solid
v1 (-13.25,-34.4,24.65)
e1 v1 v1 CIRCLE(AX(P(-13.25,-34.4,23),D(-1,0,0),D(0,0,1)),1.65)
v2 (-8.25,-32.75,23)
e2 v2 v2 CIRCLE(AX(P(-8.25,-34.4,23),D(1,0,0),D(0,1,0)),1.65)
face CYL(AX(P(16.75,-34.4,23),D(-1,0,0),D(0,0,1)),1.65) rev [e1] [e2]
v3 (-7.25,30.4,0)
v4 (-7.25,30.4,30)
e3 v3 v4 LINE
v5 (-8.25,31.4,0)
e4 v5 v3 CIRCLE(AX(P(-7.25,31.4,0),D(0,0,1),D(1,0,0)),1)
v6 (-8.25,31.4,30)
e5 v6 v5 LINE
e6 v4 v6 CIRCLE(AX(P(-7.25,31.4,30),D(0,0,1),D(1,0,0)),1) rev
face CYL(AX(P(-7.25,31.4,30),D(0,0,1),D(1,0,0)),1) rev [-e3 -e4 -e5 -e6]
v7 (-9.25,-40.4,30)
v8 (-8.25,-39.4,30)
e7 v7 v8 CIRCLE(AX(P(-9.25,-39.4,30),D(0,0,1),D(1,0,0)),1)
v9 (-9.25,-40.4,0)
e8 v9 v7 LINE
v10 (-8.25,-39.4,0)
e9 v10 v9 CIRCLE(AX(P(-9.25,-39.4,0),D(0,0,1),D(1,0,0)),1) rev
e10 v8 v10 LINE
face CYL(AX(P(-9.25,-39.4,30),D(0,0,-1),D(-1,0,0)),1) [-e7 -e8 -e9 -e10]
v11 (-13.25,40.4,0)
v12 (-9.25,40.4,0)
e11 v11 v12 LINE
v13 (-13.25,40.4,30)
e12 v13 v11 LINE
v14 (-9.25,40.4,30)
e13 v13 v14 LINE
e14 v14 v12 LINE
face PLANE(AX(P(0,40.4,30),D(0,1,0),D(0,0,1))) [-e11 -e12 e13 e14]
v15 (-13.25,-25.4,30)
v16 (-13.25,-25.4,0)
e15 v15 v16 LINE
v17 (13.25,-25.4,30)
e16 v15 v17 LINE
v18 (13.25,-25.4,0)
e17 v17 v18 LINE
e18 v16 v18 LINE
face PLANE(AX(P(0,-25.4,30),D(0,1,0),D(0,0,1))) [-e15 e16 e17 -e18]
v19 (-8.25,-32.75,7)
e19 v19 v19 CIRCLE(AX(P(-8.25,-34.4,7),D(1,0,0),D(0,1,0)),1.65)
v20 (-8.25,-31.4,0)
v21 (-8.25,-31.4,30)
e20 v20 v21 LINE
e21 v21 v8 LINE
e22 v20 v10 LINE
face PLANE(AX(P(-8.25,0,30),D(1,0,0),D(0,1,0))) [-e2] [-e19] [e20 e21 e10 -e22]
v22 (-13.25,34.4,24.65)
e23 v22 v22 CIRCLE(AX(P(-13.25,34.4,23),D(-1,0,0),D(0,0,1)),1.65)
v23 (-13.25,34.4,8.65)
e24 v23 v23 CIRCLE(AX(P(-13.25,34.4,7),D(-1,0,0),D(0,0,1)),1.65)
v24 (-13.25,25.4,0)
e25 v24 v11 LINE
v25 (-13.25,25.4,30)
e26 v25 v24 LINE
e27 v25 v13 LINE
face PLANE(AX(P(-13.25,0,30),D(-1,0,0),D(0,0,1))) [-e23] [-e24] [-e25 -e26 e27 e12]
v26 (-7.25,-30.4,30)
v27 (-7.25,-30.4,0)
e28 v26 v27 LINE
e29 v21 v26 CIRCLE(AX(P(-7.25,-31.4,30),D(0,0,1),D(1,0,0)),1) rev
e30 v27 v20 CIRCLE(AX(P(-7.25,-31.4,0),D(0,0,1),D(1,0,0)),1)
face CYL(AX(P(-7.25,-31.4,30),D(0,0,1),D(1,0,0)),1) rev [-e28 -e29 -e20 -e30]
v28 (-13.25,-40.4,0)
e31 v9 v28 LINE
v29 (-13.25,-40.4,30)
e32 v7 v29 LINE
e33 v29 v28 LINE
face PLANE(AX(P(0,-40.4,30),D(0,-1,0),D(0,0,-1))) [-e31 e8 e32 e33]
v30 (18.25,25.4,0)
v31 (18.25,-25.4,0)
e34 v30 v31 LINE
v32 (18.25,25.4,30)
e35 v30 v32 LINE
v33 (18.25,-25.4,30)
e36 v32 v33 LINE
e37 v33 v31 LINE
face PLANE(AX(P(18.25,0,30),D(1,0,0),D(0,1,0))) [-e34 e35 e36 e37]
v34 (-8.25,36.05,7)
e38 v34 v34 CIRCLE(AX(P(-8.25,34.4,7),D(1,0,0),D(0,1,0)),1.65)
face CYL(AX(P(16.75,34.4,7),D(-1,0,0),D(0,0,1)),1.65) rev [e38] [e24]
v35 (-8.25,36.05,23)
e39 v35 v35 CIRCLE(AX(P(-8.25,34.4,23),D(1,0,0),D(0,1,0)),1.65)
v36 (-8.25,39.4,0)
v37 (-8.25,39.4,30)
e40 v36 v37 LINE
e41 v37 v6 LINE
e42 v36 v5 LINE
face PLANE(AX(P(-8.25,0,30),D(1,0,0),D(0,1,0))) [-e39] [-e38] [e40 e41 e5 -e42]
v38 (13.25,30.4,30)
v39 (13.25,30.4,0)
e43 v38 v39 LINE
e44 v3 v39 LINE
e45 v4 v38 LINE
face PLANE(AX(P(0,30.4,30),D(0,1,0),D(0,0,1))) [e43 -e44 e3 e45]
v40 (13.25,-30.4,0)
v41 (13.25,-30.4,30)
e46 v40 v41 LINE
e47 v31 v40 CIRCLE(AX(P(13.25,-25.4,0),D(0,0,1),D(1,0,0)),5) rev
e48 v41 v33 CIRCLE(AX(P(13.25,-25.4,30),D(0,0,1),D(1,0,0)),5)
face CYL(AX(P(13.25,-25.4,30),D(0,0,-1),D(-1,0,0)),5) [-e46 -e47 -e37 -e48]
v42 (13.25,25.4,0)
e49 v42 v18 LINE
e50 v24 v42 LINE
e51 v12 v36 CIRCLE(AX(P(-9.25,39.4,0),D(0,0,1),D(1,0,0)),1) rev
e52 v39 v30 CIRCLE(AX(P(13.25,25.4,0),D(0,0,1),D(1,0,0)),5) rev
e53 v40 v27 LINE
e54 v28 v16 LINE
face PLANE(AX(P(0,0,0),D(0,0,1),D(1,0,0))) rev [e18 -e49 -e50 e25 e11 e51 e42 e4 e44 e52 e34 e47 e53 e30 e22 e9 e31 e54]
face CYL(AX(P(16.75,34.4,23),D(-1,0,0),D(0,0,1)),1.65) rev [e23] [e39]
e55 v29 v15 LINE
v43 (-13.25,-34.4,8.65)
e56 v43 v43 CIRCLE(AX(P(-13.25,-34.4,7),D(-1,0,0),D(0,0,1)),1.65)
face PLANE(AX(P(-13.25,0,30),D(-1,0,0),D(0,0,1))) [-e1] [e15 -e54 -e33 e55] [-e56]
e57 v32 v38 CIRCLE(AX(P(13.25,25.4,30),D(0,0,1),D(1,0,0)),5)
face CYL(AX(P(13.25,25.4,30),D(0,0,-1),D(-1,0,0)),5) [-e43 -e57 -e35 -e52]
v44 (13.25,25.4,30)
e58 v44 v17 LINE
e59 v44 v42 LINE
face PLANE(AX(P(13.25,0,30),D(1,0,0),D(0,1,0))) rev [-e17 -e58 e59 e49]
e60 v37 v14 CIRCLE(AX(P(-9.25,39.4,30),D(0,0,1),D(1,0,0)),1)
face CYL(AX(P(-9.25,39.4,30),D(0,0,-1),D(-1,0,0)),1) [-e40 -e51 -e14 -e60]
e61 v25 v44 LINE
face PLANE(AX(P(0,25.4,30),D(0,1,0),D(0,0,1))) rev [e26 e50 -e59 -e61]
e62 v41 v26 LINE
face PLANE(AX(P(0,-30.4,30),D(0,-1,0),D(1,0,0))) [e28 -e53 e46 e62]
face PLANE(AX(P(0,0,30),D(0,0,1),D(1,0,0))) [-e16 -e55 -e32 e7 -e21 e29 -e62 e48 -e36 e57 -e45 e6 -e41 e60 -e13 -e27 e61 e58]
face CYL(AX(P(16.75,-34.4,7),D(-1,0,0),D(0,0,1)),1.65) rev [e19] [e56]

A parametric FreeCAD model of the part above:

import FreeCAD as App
import Part
import Sketcher
from FreeCAD import Vector


def edges_at(feature, points):
    """Names of the edges that pass closest to the given points."""
    edges = feature.Shape.Edges
    near = lambda p: min(range(len(edges)), key=lambda i: edges[i].distToShape(Part.Vertex(*p))[0])
    return sorted({f"Edge{near(p) + 1}" for p in points})


def add_polygon(sketch, points):
    """Adds a closed chain of lines whose ends are joined by coincident constraints."""
    first, n = sketch.GeometryCount, len(points)
    for a, b in zip(points, points[1:] + points[:1]):
        sketch.addGeometry(Part.LineSegment(App.Vector(*a, 0), App.Vector(*b, 0)), False)
    for i in range(n):
        sketch.addConstraint(Sketcher.Constraint("Coincident", first + i, 2, first + (i + 1) % n, 1))

doc = App.newDocument("Part")
params = doc.addObject("Spreadsheet::Sheet", "Params")
for row, (alias, value) in enumerate([
    ("sketch1_width", "5 mm"),
    ("sketch1_height", "15 mm"),
    ("sketch1_height2", "10 mm"),
    ("sketch1_width2", "26.5 mm"),
    ("sketch1_height3", "60.8 mm"),
    ("pad1_length", "30 mm"),
    ("sketch2_diameter", "3.3 mm"),
    ("pocket1_length", "30 mm"),
    ("fillet_radius", "5 mm"),
    ("fillet2_radius", "1 mm"),
], start=1):
    params.set(f"A{row}", alias)
    params.set(f"B{row}", "=" + value)
    params.setAlias(f"B{row}", alias)

body = doc.addObject("PartDesign::Body", "Body")

sketch1 = body.newObject("Sketcher::SketchObject", "Sketch")
sketch1.AttachmentSupport = (doc.getObject("XY_Plane"), [""])
sketch1.MapMode = "FlatFace"
add_polygon(sketch1, [(-13, -25), (-13, -40), (-8, -40), (-8, -30), (18, -30), (18, 30), (-8, 30), (-8, 40), (-13, 40), (-13, 25), (13, 25), (13, -25)])
sketch1.addConstraint(Sketcher.Constraint("Vertical", 0))
sketch1.addConstraint(Sketcher.Constraint("Horizontal", 1))
sketch1.addConstraint(Sketcher.Constraint("Vertical", 2))
sketch1.addConstraint(Sketcher.Constraint("Horizontal", 3))
sketch1.addConstraint(Sketcher.Constraint("Vertical", 4))
sketch1.addConstraint(Sketcher.Constraint("Horizontal", 5))
sketch1.addConstraint(Sketcher.Constraint("Vertical", 6))
sketch1.addConstraint(Sketcher.Constraint("Horizontal", 7))
sketch1.addConstraint(Sketcher.Constraint("Vertical", 8))
sketch1.addConstraint(Sketcher.Constraint("Horizontal", 9))
sketch1.addConstraint(Sketcher.Constraint("Vertical", 10))
sketch1.addConstraint(Sketcher.Constraint("Horizontal", 11))
sketch1.addConstraint(Sketcher.Constraint("Symmetric", 8, 2, 10, 2, -1, 1))
sketch1.addConstraint(Sketcher.Constraint("Symmetric", 2, 2, 5, 2, -1))
sketch1.addConstraint(Sketcher.Constraint("Symmetric", 0, 2, 7, 2, -1))
sketch1.addConstraint(Sketcher.Constraint("Equal", 5, 9))
sketch1.addConstraint(Sketcher.Constraint("DistanceX", 1, 1, 1, 2, 5.0))
sketch1.addConstraint(Sketcher.Constraint("DistanceY", 0, 2, 0, 1, 15.0))
sketch1.addConstraint(Sketcher.Constraint("DistanceY", 2, 1, 2, 2, 10.0))
sketch1.addConstraint(Sketcher.Constraint("DistanceX", 3, 1, 3, 2, 26.5))
sketch1.addConstraint(Sketcher.Constraint("DistanceY", 4, 1, 4, 2, 60.8))
sketch1.setExpression("Constraints[28]", "Params.sketch1_width")
sketch1.setExpression("Constraints[29]", "Params.sketch1_height")
sketch1.setExpression("Constraints[30]", "Params.sketch1_height2")
sketch1.setExpression("Constraints[31]", "Params.sketch1_width2")
sketch1.setExpression("Constraints[32]", "Params.sketch1_height3")
pad1 = body.newObject("PartDesign::Pad", "Pad")
pad1.Profile = sketch1
pad1.setExpression("Length", "Params.pad1_length")

sketch2 = body.newObject("Sketcher::SketchObject", "Sketch001")
sketch2.AttachmentSupport = (doc.getObject("YZ_Plane"), [""])
sketch2.MapMode = "FlatFace"
sketch2.AttachmentOffset = App.Placement(Vector(0, 0, -13.25), App.Rotation())
sketch2.addGeometry(Part.Circle(Vector(34.4, 7, 0), Vector(0, 0, 1), 1.6), False)
sketch2.addGeometry(Part.Circle(Vector(34.4, 23, 0), Vector(0, 0, 1), 1.6), False)
sketch2.addGeometry(Part.Circle(Vector(-34.4, 7, 0), Vector(0, 0, 1), 1.6), False)
sketch2.addGeometry(Part.Circle(Vector(-34.4, 23, 0), Vector(0, 0, 1), 1.6), False)
sketch2.addConstraint(Sketcher.Constraint("Equal", 0, 1))
sketch2.addConstraint(Sketcher.Constraint("Equal", 1, 2))
sketch2.addConstraint(Sketcher.Constraint("Equal", 2, 3))
sketch2.addConstraint(Sketcher.Constraint("Symmetric", 0, 3, 2, 3, -2))
sketch2.addConstraint(Sketcher.Constraint("Symmetric", 1, 3, 3, 3, -2))
sketch2.addConstraint(Sketcher.Constraint("Vertical", 0, 3, 1, 3))
sketch2.addConstraint(Sketcher.Constraint("Diameter", 0, 3.3))
sketch2.addConstraint(Sketcher.Constraint("DistanceY", -1, 1, 0, 3, 7.0))
sketch2.addConstraint(Sketcher.Constraint("DistanceY", -1, 1, 1, 3, 23.0))
sketch2.addConstraint(Sketcher.Constraint("DistanceX", -1, 1, 0, 3, 34.4))
sketch2.setExpression("Constraints[6]", "Params.sketch2_diameter")
pocket1 = body.newObject("PartDesign::Pocket", "Pocket")
pocket1.Profile = sketch2
pocket1.setExpression("Length", "Params.pocket1_length")
pocket1.Reversed = True
doc.recompute()

fillet = body.newObject("PartDesign::Fillet", "Fillet")
fillet.Base = (pocket1, edges_at(pocket1, [(18.25, 30.4, 15), (18.25, -30.4, 15)]))
fillet.setExpression("Radius", "Params.fillet_radius")
doc.recompute()

fillet2 = body.newObject("PartDesign::Fillet", "Fillet001")
fillet2.Base = (fillet, edges_at(fillet, [
    (-8.25, 40.4, 15),
    (-8.25, 30.4, 15),
    (-8.25, -30.4, 15),
    (-8.25, -40.4, 15),
]))
fillet2.setExpression("Radius", "Params.fillet2_radius")

doc.recompute()
